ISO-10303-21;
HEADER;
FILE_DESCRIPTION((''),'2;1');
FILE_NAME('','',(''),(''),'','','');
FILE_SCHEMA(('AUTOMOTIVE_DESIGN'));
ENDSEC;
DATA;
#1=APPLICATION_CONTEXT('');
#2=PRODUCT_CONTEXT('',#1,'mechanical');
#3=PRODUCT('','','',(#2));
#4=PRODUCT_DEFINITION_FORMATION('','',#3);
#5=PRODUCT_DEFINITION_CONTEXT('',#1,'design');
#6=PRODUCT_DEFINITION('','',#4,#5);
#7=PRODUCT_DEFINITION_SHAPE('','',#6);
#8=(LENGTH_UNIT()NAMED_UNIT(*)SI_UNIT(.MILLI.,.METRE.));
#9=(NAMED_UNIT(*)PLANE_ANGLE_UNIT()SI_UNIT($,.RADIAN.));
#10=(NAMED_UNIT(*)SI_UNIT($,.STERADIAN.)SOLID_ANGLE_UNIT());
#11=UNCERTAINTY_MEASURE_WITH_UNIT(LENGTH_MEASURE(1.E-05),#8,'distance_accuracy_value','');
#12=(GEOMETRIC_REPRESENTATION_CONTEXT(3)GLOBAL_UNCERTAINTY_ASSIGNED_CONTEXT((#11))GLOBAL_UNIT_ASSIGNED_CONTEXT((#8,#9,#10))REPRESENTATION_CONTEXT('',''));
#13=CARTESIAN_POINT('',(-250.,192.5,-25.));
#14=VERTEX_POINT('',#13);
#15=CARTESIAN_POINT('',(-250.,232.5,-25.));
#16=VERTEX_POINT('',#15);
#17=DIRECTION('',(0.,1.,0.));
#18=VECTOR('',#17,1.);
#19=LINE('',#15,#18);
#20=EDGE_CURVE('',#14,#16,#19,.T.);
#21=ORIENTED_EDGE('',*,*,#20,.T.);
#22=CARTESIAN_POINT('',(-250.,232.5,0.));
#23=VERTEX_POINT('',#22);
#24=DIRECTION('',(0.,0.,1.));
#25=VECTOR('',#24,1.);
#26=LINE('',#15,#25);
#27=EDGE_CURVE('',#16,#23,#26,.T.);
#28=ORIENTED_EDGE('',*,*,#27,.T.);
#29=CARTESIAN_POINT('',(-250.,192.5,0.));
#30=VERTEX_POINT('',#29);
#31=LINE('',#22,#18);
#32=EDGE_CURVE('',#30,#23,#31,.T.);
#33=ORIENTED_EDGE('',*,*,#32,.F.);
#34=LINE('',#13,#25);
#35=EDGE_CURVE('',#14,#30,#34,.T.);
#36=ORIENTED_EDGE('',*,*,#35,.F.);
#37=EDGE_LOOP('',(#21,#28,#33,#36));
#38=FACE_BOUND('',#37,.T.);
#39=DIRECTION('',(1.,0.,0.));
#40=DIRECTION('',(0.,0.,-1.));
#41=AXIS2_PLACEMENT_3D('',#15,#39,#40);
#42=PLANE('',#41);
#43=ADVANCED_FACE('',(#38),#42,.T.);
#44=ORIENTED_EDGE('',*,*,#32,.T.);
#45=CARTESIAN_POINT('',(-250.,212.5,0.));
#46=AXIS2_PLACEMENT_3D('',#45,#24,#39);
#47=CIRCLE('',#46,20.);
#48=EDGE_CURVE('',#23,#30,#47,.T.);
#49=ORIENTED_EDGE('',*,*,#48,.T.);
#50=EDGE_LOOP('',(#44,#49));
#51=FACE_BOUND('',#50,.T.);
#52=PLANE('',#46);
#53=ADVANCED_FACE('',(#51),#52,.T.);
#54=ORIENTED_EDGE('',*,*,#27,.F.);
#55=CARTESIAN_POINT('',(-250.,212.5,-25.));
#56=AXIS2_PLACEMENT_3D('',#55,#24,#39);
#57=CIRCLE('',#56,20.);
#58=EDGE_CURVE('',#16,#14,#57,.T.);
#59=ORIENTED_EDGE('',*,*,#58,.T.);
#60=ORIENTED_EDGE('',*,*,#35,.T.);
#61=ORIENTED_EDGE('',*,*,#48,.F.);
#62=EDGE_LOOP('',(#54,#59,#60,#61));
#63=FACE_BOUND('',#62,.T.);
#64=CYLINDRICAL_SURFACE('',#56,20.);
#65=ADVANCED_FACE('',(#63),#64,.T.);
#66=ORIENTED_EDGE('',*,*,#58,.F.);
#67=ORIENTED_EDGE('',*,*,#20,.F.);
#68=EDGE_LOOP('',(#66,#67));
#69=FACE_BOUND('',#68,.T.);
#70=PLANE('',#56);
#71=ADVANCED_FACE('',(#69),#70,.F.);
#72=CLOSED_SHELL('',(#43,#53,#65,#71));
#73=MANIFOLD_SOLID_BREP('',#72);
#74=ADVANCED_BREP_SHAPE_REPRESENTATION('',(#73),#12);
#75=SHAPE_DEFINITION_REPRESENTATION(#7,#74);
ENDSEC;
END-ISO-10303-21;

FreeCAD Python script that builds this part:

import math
import FreeCAD as App
import Part
import Sketcher

doc = App.newDocument("Part")
params = doc.addObject("Spreadsheet::Sheet", "Params")
for row, (alias, value) in enumerate([
    ("sketch1_radius", "20 mm"),
    ("pad1_length", "25 mm"),
], start=1):
    params.set(f"A{row}", alias)
    params.set(f"B{row}", "=" + value)
    params.setAlias(f"B{row}", alias)

body = doc.addObject("PartDesign::Body", "Body")

sketch1 = body.newObject("Sketcher::SketchObject", "Sketch")
sketch1.AttachmentSupport = (doc.getObject("XY_Plane"), [""])
sketch1.MapMode = "FlatFace"
sketch1.addGeometry([
    Part.LineSegment(App.Vector(-250, 192, 0), App.Vector(-250, 232, 0)),
    Part.ArcOfCircle(Part.Circle(App.Vector(-250, 212, 0), App.Vector(0, 0, 1), 20), math.radians(90), math.radians(270)),
], False)
sketch1.addConstraint([
    Sketcher.Constraint("Coincident", 0, 1, 1, 2),
    Sketcher.Constraint("Coincident", 1, 1, 0, 2),
    Sketcher.Constraint("Vertical", 0),
    Sketcher.Constraint("Vertical", 1, 3, 0, 1),
    Sketcher.Constraint("Radius", 1, 20.0),
    Sketcher.Constraint("DistanceX", 1, 3, -1, 1, 250.0),
    Sketcher.Constraint("DistanceY", -1, 1, 1, 3, 212.5),
])
sketch1.setExpression("Constraints[4]", "Params.sketch1_radius")
pad1 = body.newObject("PartDesign::Pad", "Pad")
pad1.Profile = sketch1
pad1.setExpression("Length", "Params.pad1_length")
pad1.Reversed = True

doc.recompute()
